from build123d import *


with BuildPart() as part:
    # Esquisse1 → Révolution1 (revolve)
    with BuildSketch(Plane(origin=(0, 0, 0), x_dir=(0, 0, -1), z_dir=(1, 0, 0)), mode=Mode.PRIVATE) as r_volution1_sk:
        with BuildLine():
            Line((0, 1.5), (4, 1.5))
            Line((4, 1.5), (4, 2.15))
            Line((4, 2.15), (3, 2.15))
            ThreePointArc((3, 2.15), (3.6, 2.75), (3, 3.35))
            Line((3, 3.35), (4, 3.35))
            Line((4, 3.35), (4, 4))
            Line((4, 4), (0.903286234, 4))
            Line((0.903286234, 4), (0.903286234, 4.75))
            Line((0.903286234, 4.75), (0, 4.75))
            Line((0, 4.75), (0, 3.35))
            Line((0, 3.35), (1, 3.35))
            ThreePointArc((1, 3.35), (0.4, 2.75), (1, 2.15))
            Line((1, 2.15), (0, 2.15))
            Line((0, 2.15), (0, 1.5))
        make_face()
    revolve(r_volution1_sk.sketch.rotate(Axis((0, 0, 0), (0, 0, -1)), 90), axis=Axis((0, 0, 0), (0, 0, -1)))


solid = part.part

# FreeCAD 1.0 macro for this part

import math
import FreeCAD as App
import Part
import Sketcher
from FreeCAD import Vector
Q = App.Units.Quantity

doc = App.newDocument("Part")
body = doc.addObject("PartDesign::Body", "Body")

sketch1 = body.newObject("Sketcher::SketchObject", "Sketch")
sketch1.AttachmentSupport = (doc.getObject("YZ_Plane"), [""])
sketch1.MapMode = "FlatFace"
sketch1.addGeometry(Part.LineSegment(Vector(1.5, 0, 0), Vector(1.5, -4, 0)), False)
sketch1.addGeometry(Part.LineSegment(Vector(1.5, -4, 0), Vector(2.15, -4, 0)), False)
sketch1.addGeometry(Part.LineSegment(Vector(2.15, -4, 0), Vector(2.15, -3, 0)), False)
sketch1.addGeometry(Part.ArcOfCircle(Part.Circle(Vector(2.75, -3, 0), Vector(0, 0, 1), 0.6), math.radians(180), math.radians(360)), False)
sketch1.addGeometry(Part.LineSegment(Vector(3.35, -3, 0), Vector(3.35, -4, 0)), False)
sketch1.addGeometry(Part.LineSegment(Vector(3.35, -4, 0), Vector(4, -4, 0)), False)
sketch1.addGeometry(Part.LineSegment(Vector(4, -4, 0), Vector(4, -0.903286, 0)), False)
sketch1.addGeometry(Part.LineSegment(Vector(4, -0.903286, 0), Vector(4.75, -0.903286, 0)), False)
sketch1.addGeometry(Part.LineSegment(Vector(4.75, -0.903286, 0), Vector(4.75, 0, 0)), False)
sketch1.addGeometry(Part.LineSegment(Vector(4.75, 0, 0), Vector(3.35, 0, 0)), False)
sketch1.addGeometry(Part.LineSegment(Vector(3.35, 0, 0), Vector(3.35, -1, 0)), False)
sketch1.addGeometry(Part.ArcOfCircle(Part.Circle(Vector(2.75, -1, 0), Vector(0, 0, 1), 0.6), math.radians(0), math.radians(180)), False)
sketch1.addGeometry(Part.LineSegment(Vector(2.15, -1, 0), Vector(2.15, 0, 0)), False)
sketch1.addGeometry(Part.LineSegment(Vector(2.15, 0, 0), Vector(1.5, 0, 0)), False)
sketch1.addConstraint(Sketcher.Constraint("Coincident", 0, 2, 1, 1))
sketch1.addConstraint(Sketcher.Constraint("Coincident", 1, 2, 2, 1))
sketch1.addConstraint(Sketcher.Constraint("Tangent", 2, 2, 3, 1))
sketch1.addConstraint(Sketcher.Constraint("Tangent", 3, 2, 4, 1))
sketch1.addConstraint(Sketcher.Constraint("Coincident", 4, 2, 5, 1))
sketch1.addConstraint(Sketcher.Constraint("Coincident", 5, 2, 6, 1))
sketch1.addConstraint(Sketcher.Constraint("Coincident", 6, 2, 7, 1))
sketch1.addConstraint(Sketcher.Constraint("Coincident", 7, 2, 8, 1))
sketch1.addConstraint(Sketcher.Constraint("Coincident", 8, 2, 9, 1))
sketch1.addConstraint(Sketcher.Constraint("Coincident", 9, 2, 10, 1))
sketch1.addConstraint(Sketcher.Constraint("Tangent", 10, 2, 11, 1))
sketch1.addConstraint(Sketcher.Constraint("Tangent", 11, 2, 12, 1))
sketch1.addConstraint(Sketcher.Constraint("Coincident", 12, 2, 13, 1))
sketch1.addConstraint(Sketcher.Constraint("Coincident", 13, 2, 0, 1))
sketch1.addConstraint(Sketcher.Constraint("Vertical", 0))
sketch1.addConstraint(Sketcher.Constraint("Horizontal", 1))
sketch1.addConstraint(Sketcher.Constraint("Vertical", 2))
sketch1.addConstraint(Sketcher.Constraint("Vertical", 4))
sketch1.addConstraint(Sketcher.Constraint("Horizontal", 5))
sketch1.addConstraint(Sketcher.Constraint("Vertical", 6))
sketch1.addConstraint(Sketcher.Constraint("Horizontal", 7))
sketch1.addConstraint(Sketcher.Constraint("Vertical", 8))
sketch1.addConstraint(Sketcher.Constraint("Horizontal", 9))
sketch1.addConstraint(Sketcher.Constraint("Vertical", 10))
sketch1.addConstraint(Sketcher.Constraint("Vertical", 12))
sketch1.addConstraint(Sketcher.Constraint("Horizontal", 13))
sketch1.addConstraint(Sketcher.Constraint("Equal", 3, 11))
sketch1.addConstraint(Sketcher.Constraint("PointOnObject", 8, 2, -1))
sketch1.addConstraint(Sketcher.Constraint("PointOnObject", 12, 2, -1))
sketch1.addConstraint(Sketcher.Constraint("Horizontal", 1, 2, 4, 2))
sketch1.addConstraint(Sketcher.Constraint("Vertical", 3, 3, 11, 3))
sketch1.addConstraint(Sketcher.Constraint("Equal", 1, 5))
sketch1.addConstraint(Sketcher.Constraint("Equal", 4, 10))
sketch1.addConstraint(Sketcher.Constraint("Radius", 3, Q("0.6 mm")))
sketch1.addConstraint(Sketcher.Constraint("DistanceY", 0, 2, 0, 1, Q("4 mm")))
sketch1.addConstraint(Sketcher.Constraint("DistanceY", 2, 1, 2, 2, Q("1 mm")))
sketch1.addConstraint(Sketcher.Constraint("DistanceX", 9, 2, 9, 1, Q("1.4 mm")))
sketch1.addConstraint(Sketcher.Constraint("DistanceX", -1, 1, 5, 2, Q("4 mm")))
sketch1.addConstraint(Sketcher.Constraint("DistanceX", 1, 1, 1, 2, Q("0.65 mm")))
sketch1.addConstraint(Sketcher.Constraint("DistanceY", 6, 1, 6, 2, Q("3.096714 mm")))
revolution = body.newObject("PartDesign::Revolution", "Revolution")
revolution.Profile = sketch1
revolution.ReferenceAxis = (sketch1, ["V_Axis"])
revolution.Angle = 360

doc.recompute()
